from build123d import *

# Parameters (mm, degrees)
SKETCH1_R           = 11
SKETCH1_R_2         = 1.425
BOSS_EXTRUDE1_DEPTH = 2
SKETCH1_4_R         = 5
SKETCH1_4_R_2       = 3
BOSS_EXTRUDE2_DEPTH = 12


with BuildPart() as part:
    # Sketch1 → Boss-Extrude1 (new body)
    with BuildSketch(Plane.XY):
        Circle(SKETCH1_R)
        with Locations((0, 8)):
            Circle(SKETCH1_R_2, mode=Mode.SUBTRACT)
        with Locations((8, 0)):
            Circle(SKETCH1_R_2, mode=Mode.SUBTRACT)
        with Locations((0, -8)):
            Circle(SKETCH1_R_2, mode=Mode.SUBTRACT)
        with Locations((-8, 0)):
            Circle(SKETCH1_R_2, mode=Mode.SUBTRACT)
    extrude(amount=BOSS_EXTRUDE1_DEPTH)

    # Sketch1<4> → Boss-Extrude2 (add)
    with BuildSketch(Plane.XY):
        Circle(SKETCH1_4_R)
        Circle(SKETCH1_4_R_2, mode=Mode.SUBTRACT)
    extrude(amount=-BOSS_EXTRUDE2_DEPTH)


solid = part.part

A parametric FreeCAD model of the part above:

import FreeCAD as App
import Part
import Sketcher

V = App.Vector

doc = App.newDocument("Part")
params = doc.addObject("Spreadsheet::Sheet", "Params")
for row, (alias, value) in enumerate([
    ("sketch1_diameter", "22 mm"),
    ("sketch1_diameter2", "2.85 mm"),
    ("pad1_length", "2 mm"),
    ("sketch2_diameter", "10 mm"),
    ("sketch2_diameter2", "6 mm"),
    ("pad2_length", "12 mm"),
], start=1):
    params.set(f"A{row}", alias)
    params.set(f"B{row}", "=" + value)
    params.setAlias(f"B{row}", alias)

body = doc.addObject("PartDesign::Body", "Body")

# Sketch on XY plane
sketch1 = doc.addObject("Sketcher::SketchObject", "Sketch")
body.addObject(sketch1)
sketch1.AttachmentSupport = (doc.XY_Plane, [""])
sketch1.MapMode = "FlatFace"
sketch1.addGeometry([
    Part.Circle(V(0, 0, 0), V(0, 0, 1), 11),  # 0
    Part.Circle(V(0, -8, 0), V(0, 0, 1), 1.4),  # 1
    Part.Circle(V(-8, 0, 0), V(0, 0, 1), 1.4),  # 2
    Part.Circle(V(8, 0, 0), V(0, 0, 1), 1.4),  # 3
    Part.Circle(V(0, 8, 0), V(0, 0, 1), 1.4),  # 4
], False)
sketch1.addConstraint([
    Sketcher.Constraint("Coincident", 0, 3, -1, 1),
    Sketcher.Constraint("Equal", 1, 2),
    Sketcher.Constraint("Equal", 2, 3),
    Sketcher.Constraint("Equal", 3, 4),
    Sketcher.Constraint("Symmetric", 2, 3, 3, 3, -1, 1),
    Sketcher.Constraint("Symmetric", 1, 3, 4, 3, -1, 1),
    Sketcher.Constraint("PointOnObject", 1, 3, -2),
    Sketcher.Constraint("PointOnObject", 2, 3, -1),
    Sketcher.Constraint("Diameter", 0, 22.0),
    Sketcher.Constraint("Diameter", 1, 2.85),
    Sketcher.Constraint("DistanceY", 1, 3, -1, 1, 8.0),
    Sketcher.Constraint("DistanceX", 2, 3, -1, 1, 8.0),
])
sketch1.setExpression("Constraints[8]", "Params.sketch1_diameter")
sketch1.setExpression("Constraints[9]", "Params.sketch1_diameter2")
pad1 = doc.addObject("PartDesign::Pad", "Pad")
body.addObject(pad1)
pad1.Profile = sketch1
pad1.setExpression("Length", "Params.pad1_length")

# Sketch on XY plane
sketch2 = doc.addObject("Sketcher::SketchObject", "Sketch001")
body.addObject(sketch2)
sketch2.AttachmentSupport = (doc.XY_Plane, [""])
sketch2.MapMode = "FlatFace"
sketch2.addGeometry([
    Part.Circle(V(0, 0, 0), V(0, 0, 1), 5),
    Part.Circle(V(0, 0, 0), V(0, 0, 1), 3),
], False)
sketch2.addConstraint([
    Sketcher.Constraint("Coincident", 0, 3, -1, 1),
    Sketcher.Constraint("Coincident", 1, 3, -1, 1),
    Sketcher.Constraint("Diameter", 0, 10.0),
    Sketcher.Constraint("Diameter", 1, 6.0),
])
sketch2.setExpression("Constraints[2]", "Params.sketch2_diameter")
sketch2.setExpression("Constraints[3]", "Params.sketch2_diameter2")
pad2 = doc.addObject("PartDesign::Pad", "Pad001")
body.addObject(pad2)
pad2.Profile = sketch2
pad2.setExpression("Length", "Params.pad2_length")
pad2.Reversed = True

doc.recompute()
